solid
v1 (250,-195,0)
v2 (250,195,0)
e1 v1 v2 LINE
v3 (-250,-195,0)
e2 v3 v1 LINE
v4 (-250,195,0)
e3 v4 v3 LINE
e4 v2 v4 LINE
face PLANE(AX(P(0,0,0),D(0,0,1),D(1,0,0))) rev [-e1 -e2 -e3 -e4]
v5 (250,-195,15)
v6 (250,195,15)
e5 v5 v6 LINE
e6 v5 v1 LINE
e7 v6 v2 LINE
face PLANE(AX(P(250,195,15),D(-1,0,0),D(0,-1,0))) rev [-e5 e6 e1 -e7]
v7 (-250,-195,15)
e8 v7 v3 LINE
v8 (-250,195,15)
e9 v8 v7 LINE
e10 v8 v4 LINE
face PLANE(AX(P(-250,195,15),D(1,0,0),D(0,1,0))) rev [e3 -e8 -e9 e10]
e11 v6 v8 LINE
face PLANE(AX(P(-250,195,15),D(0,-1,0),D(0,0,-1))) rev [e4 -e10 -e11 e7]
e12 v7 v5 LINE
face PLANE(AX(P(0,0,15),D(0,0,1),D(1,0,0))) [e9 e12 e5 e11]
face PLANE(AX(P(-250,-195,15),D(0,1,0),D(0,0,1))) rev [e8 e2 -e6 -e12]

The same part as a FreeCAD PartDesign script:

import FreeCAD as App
import Part
import Sketcher
Q = App.Units.Quantity


def add_polygon(sketch, points):
    """Adds a closed chain of lines whose ends are joined by coincident constraints."""
    first, n = sketch.GeometryCount, len(points)
    for a, b in zip(points, points[1:] + points[:1]):
        sketch.addGeometry(Part.LineSegment(App.Vector(*a, 0), App.Vector(*b, 0)), False)
    for i in range(n):
        sketch.addConstraint(Sketcher.Constraint("Coincident", first + i, 2, first + (i + 1) % n, 1))

doc = App.newDocument("Part")
body = doc.addObject("PartDesign::Body", "Body")

sketch1 = body.newObject("Sketcher::SketchObject", "Sketch")
sketch1.AttachmentSupport = (doc.getObject("XY_Plane"), [""])
sketch1.MapMode = "FlatFace"
add_polygon(sketch1, [(-250, 195), (-250, -195), (250, -195), (250, 195)])
sketch1.addConstraint([
    Sketcher.Constraint("Vertical", 0),
    Sketcher.Constraint("Horizontal", 1),
    Sketcher.Constraint("Vertical", 2),
    Sketcher.Constraint("Horizontal", 3),
    Sketcher.Constraint("Symmetric", 0, 2, 2, 2, -1, 1),
    Sketcher.Constraint("DistanceX", 1, 1, 1, 2, Q("500 mm")),
    Sketcher.Constraint("DistanceY", 0, 2, 0, 1, Q("390 mm")),
])
pad1 = body.newObject("PartDesign::Pad", "Pad")
pad1.Profile = sketch1
pad1.Length = 15

doc.recompute()
